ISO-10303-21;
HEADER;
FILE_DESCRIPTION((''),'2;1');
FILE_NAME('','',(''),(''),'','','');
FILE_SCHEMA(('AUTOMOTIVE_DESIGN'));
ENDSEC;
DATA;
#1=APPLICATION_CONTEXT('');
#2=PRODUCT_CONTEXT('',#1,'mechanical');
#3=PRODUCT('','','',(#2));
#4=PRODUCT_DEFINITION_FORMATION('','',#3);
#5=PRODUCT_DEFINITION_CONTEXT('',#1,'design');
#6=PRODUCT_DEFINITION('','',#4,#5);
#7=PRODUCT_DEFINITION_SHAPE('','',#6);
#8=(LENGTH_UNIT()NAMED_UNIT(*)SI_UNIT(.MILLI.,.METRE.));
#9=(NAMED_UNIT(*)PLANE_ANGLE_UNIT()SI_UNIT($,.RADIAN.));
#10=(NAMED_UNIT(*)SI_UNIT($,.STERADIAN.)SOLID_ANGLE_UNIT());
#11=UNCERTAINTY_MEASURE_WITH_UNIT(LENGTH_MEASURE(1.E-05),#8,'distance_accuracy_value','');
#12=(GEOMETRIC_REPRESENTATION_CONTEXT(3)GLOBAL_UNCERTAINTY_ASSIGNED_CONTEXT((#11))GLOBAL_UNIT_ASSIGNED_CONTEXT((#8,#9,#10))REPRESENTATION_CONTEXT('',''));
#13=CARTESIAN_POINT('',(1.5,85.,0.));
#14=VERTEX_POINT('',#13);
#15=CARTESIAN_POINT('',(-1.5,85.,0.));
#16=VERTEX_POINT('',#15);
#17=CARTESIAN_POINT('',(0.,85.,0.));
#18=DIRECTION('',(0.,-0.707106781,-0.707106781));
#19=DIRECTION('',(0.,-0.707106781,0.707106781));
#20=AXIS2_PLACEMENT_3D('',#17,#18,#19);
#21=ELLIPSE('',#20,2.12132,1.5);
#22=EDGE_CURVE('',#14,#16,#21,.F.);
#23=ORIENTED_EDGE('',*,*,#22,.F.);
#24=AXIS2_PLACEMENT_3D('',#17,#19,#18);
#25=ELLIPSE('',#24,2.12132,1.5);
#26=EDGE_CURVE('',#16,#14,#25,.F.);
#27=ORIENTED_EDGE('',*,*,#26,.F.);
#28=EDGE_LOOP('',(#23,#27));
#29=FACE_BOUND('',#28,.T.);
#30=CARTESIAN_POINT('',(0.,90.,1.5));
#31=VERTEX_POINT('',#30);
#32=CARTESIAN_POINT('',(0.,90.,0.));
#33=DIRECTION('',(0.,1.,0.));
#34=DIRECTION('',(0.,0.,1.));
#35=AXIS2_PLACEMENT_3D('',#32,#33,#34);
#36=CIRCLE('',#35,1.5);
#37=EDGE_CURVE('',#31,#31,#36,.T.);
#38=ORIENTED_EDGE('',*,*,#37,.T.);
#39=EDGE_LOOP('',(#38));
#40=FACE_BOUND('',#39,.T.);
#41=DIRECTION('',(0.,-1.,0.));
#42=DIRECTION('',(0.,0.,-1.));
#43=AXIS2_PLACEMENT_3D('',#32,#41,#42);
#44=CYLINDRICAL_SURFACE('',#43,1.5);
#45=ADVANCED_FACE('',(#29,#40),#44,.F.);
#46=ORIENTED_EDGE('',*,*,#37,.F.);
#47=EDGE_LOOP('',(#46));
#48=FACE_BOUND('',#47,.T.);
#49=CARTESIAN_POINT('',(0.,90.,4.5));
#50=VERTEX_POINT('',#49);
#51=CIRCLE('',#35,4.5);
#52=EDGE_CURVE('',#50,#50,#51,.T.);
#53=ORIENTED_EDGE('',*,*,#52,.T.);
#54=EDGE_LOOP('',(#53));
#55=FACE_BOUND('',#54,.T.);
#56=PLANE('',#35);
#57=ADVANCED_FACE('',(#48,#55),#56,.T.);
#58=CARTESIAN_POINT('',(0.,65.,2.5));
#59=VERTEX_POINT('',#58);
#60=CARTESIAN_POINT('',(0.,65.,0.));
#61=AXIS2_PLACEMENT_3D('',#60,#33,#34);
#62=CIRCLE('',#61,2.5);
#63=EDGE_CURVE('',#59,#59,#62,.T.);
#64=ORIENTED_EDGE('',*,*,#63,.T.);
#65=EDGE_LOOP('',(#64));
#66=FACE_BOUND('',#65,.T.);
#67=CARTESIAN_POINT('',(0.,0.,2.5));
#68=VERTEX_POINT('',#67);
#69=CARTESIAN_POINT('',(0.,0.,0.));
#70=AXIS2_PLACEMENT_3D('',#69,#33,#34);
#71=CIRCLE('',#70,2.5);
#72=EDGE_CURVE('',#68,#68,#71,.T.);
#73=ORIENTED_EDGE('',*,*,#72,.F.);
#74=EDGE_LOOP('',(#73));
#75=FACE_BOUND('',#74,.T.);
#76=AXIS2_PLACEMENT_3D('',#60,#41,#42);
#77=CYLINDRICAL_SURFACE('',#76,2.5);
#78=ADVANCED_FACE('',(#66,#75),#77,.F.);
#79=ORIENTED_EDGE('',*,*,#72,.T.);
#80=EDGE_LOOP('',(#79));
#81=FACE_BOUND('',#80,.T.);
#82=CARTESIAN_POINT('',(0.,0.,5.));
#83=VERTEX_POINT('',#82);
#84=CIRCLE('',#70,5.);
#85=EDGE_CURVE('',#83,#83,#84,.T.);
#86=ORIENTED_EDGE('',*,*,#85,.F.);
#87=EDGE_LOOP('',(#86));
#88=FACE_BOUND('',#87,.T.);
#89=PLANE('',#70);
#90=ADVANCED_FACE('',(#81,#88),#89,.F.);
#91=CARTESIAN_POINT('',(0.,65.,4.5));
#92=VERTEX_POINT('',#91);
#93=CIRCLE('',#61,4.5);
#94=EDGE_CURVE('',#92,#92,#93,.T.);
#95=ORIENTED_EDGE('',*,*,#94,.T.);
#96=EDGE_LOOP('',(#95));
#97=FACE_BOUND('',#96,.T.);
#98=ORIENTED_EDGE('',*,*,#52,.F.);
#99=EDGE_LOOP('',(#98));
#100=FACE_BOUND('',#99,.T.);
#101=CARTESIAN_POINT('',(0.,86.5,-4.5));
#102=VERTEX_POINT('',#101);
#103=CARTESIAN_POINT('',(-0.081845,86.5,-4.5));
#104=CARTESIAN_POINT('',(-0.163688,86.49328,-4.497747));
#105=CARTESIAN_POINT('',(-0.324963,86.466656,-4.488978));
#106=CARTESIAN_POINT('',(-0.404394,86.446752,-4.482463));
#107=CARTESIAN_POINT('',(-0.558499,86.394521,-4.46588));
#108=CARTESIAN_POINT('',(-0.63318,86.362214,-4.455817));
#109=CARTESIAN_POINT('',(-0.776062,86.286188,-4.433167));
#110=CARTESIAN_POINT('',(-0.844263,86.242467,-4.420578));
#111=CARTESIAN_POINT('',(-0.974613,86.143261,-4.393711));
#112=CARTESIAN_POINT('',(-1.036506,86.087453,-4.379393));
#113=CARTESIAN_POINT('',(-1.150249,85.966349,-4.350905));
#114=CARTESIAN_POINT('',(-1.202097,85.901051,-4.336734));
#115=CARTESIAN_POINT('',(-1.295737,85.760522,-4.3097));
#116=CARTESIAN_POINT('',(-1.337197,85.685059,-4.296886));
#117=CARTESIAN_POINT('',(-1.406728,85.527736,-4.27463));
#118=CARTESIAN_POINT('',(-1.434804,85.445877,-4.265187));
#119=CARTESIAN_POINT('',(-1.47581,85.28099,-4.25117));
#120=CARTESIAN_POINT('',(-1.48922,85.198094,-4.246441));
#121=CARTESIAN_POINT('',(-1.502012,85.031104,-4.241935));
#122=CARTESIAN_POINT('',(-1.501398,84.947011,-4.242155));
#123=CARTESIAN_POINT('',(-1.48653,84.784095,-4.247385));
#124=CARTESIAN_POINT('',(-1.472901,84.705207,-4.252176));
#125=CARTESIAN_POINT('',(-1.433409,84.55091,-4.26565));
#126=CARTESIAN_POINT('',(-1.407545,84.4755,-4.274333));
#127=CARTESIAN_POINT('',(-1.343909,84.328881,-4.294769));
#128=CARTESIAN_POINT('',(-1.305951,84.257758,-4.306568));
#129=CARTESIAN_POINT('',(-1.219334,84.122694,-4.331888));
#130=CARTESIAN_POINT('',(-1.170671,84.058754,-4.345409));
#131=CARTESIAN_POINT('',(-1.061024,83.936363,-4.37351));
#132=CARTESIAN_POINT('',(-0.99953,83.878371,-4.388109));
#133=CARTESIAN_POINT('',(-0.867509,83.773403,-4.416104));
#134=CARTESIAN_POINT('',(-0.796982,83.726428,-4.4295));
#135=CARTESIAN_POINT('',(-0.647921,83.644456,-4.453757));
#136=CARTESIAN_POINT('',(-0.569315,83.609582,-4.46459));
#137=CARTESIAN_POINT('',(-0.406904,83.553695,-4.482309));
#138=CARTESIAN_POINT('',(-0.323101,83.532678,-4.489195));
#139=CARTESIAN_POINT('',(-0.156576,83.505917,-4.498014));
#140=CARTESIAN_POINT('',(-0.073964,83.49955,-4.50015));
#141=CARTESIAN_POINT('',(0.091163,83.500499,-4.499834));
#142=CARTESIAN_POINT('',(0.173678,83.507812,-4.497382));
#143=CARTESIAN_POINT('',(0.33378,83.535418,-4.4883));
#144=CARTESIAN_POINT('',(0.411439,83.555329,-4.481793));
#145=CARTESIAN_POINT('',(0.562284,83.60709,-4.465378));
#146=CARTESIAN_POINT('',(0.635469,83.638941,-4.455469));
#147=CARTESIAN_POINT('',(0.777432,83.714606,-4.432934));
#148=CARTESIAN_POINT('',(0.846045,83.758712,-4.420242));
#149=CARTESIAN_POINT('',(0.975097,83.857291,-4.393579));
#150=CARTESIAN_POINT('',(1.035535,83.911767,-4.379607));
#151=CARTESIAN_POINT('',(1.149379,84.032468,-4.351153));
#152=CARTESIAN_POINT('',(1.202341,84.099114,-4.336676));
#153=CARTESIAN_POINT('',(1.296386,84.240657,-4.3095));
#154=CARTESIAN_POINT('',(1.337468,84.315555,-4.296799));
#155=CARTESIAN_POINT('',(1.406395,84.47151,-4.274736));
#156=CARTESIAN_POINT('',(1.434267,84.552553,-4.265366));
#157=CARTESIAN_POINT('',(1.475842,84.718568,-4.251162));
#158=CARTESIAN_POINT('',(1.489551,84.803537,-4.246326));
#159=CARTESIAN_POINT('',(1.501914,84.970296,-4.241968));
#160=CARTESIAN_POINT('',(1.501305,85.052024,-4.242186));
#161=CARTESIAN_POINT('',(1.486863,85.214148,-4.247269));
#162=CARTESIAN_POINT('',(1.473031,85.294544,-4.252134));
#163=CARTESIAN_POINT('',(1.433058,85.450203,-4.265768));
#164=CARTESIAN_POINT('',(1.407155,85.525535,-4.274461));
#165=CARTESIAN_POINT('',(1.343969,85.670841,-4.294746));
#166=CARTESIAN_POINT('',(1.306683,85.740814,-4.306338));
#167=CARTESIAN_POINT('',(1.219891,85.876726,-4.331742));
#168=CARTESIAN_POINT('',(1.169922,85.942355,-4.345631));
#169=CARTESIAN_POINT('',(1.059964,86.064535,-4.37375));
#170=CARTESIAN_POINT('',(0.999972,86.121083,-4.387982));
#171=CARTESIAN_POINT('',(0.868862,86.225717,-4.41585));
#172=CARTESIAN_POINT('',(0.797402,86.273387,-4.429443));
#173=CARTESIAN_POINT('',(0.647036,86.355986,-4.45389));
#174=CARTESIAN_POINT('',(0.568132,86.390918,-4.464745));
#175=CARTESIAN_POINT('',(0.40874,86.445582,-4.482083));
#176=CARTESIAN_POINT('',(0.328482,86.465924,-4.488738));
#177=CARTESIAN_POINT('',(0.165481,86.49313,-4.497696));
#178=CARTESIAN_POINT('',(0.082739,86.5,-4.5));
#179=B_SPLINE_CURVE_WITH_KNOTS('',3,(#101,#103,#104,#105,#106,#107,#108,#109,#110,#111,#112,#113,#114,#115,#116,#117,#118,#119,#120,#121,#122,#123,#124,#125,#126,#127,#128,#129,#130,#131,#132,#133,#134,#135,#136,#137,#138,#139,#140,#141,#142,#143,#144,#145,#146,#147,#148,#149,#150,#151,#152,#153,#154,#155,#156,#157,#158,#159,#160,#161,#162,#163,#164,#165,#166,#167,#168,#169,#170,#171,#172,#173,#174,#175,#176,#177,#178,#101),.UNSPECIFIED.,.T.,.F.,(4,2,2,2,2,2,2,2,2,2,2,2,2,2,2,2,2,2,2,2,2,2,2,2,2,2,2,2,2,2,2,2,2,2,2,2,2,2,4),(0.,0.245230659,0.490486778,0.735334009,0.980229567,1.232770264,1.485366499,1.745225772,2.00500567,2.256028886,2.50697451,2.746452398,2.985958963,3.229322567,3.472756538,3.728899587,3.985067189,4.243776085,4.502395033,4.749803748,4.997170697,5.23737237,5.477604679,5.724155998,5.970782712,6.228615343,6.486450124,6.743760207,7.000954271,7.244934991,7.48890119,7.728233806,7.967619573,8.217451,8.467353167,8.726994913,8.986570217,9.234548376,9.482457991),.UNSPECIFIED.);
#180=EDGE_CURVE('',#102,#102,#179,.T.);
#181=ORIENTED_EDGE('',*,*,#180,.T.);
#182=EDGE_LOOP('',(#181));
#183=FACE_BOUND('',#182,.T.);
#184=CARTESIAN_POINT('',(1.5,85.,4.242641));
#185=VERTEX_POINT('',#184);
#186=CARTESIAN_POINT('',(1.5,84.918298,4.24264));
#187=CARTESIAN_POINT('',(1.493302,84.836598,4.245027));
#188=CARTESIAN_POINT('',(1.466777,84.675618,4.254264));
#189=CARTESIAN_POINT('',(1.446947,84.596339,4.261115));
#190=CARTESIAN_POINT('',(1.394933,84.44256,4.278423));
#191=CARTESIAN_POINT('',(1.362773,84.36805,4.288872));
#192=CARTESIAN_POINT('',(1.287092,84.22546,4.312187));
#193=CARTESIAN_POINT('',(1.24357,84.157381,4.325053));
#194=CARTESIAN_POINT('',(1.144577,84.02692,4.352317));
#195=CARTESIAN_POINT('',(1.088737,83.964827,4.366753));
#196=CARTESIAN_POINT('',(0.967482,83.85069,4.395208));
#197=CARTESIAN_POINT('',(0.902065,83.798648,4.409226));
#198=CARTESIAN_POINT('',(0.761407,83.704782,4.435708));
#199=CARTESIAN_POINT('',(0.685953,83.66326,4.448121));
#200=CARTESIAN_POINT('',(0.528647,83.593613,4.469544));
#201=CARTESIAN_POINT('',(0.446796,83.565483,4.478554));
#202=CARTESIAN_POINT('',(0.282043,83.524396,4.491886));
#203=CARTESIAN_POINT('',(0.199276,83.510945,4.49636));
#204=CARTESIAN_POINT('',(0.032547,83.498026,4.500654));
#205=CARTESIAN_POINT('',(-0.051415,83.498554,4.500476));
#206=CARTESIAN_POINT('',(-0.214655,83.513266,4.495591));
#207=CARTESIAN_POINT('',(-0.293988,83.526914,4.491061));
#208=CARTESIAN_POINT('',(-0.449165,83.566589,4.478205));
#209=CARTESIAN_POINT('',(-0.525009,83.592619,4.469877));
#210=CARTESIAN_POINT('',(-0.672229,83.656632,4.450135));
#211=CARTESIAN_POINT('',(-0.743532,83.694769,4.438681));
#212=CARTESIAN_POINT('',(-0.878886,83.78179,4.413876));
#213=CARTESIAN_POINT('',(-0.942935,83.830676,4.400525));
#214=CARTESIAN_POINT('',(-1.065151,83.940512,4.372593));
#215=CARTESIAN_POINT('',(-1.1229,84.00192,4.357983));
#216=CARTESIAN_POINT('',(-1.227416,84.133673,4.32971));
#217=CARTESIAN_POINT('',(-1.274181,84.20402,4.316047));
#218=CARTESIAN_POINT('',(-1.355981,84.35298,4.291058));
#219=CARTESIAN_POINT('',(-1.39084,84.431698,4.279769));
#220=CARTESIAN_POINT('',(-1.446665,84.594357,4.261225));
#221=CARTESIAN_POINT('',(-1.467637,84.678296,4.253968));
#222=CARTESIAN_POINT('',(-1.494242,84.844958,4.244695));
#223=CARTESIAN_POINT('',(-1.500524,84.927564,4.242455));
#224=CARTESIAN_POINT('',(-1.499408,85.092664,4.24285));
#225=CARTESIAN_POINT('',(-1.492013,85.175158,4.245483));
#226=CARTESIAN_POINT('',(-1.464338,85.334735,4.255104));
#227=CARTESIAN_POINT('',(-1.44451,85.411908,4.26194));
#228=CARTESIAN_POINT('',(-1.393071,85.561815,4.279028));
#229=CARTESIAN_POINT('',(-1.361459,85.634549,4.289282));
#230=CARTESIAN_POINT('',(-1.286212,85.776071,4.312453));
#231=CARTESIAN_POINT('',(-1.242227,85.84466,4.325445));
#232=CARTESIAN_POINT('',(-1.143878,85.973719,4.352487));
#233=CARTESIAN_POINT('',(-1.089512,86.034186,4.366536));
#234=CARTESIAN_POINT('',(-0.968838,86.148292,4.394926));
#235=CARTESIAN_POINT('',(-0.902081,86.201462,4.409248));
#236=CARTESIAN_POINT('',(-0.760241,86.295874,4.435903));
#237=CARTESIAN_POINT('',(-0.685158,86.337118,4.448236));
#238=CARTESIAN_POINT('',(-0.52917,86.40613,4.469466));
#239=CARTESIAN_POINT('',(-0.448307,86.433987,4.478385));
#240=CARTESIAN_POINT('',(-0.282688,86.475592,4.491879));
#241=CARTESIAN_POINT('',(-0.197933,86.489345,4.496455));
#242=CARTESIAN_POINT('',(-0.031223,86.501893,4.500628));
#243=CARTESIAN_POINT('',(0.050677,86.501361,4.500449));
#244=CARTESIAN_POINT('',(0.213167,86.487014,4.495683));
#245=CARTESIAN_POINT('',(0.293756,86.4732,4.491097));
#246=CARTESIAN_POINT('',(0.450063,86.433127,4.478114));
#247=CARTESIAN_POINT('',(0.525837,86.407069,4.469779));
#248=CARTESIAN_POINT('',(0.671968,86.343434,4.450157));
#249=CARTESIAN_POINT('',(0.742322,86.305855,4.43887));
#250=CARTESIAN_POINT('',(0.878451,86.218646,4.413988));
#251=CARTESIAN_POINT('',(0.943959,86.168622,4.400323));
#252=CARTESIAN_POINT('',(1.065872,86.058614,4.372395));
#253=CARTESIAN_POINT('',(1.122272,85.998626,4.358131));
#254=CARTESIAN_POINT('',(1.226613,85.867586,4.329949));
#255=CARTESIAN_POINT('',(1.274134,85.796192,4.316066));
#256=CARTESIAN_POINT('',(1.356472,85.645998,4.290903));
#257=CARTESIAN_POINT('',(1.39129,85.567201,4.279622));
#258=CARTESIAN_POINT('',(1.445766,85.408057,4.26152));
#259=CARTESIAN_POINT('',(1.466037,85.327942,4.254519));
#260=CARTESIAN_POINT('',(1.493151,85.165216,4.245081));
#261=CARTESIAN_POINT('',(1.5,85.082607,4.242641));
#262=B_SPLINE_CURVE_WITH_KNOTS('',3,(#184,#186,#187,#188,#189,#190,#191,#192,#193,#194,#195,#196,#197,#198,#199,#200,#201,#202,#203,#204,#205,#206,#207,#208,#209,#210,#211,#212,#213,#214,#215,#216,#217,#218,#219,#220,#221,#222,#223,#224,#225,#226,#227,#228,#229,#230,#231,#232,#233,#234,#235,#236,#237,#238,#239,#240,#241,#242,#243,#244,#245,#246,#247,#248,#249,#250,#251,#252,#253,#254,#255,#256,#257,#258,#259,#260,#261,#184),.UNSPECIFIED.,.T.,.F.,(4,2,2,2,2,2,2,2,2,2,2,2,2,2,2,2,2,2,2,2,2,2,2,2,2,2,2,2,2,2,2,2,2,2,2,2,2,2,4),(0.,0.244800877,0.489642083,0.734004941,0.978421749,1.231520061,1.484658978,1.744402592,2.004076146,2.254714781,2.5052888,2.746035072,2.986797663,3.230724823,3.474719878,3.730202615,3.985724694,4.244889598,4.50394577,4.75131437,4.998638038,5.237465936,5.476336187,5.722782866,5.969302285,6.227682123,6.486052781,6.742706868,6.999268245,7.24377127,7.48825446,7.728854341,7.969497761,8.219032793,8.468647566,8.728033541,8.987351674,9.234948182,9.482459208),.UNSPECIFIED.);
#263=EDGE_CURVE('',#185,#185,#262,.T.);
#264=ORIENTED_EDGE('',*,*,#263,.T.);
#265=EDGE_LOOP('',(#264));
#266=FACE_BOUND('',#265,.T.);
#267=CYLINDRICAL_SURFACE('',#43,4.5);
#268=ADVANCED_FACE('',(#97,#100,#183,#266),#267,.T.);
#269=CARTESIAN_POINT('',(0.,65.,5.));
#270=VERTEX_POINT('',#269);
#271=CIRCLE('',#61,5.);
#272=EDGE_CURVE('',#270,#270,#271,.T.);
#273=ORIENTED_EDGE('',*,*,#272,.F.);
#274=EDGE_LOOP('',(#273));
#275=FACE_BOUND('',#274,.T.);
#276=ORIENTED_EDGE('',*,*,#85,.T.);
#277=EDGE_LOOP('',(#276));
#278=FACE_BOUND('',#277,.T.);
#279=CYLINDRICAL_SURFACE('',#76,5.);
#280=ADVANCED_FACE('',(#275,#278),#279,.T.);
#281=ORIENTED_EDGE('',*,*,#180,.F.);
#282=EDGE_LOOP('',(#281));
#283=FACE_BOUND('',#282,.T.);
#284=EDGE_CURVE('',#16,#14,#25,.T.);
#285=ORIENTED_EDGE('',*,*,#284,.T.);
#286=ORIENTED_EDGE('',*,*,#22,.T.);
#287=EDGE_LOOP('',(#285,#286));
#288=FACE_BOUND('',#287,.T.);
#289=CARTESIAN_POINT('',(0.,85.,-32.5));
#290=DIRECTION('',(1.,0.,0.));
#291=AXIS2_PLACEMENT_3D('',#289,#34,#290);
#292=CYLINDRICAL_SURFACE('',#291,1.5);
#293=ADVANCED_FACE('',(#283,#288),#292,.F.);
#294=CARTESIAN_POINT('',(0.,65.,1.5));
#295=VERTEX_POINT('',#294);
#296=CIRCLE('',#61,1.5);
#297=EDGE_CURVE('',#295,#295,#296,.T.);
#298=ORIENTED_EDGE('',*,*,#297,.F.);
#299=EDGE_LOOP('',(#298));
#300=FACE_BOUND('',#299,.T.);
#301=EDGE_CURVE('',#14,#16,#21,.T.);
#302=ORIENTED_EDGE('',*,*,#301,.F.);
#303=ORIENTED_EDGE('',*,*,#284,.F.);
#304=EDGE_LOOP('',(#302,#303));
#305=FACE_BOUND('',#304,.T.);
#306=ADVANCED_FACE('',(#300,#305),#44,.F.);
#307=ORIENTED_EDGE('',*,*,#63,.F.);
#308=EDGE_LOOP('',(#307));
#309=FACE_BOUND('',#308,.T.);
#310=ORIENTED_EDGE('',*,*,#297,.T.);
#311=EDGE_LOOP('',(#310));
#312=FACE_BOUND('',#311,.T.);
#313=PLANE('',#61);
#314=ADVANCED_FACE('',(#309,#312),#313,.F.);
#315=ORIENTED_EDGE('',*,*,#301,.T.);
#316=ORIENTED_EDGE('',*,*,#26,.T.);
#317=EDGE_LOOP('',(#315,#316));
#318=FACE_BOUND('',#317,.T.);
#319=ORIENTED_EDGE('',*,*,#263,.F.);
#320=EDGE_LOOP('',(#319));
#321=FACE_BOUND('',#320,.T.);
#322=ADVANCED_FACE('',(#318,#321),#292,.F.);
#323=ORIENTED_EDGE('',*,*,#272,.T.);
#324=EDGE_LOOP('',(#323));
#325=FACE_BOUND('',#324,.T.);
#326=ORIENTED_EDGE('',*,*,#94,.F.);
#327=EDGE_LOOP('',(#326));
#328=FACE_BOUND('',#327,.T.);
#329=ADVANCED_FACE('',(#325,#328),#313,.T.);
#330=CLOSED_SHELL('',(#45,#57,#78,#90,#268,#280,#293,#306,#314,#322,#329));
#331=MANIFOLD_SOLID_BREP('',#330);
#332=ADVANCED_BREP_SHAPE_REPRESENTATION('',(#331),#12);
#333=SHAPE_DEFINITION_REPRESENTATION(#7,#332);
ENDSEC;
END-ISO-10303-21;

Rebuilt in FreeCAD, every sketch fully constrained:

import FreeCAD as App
import Part
import Sketcher
from FreeCAD import Vector
Q = App.Units.Quantity

doc = App.newDocument("Part")
body = doc.addObject("PartDesign::Body", "Body")

# Sketch on XZ plane
sketch1 = body.newObject("Sketcher::SketchObject", "Sketch")
sketch1.AttachmentSupport = (doc.getObject("XZ_Plane"), [""])
sketch1.MapMode = "FlatFace"
sketch1.addGeometry([
    Part.Circle(Vector(0, 0, 0), Vector(0, 0, 1), 5),
    Part.Circle(Vector(0, 0, 0), Vector(0, 0, 1), 2.5),
], False)
sketch1.addConstraint([
    Sketcher.Constraint("Coincident", 0, 3, -1, 1),
    Sketcher.Constraint("Coincident", 1, 3, -1, 1),
    Sketcher.Constraint("Diameter", 0, Q("10 mm")),
    Sketcher.Constraint("Diameter", 1, Q("5 mm")),
])
pad1 = body.newObject("PartDesign::Pad", "Pad")
pad1.Profile = sketch1
pad1.Length = 65
pad1.Reversed = True

# Sketch on XZ plane
sketch2 = body.newObject("Sketcher::SketchObject", "Sketch001")
sketch2.AttachmentSupport = (doc.getObject("XZ_Plane"), [""])
sketch2.MapMode = "FlatFace"
sketch2.AttachmentOffset = App.Placement(Vector(0, 0, -65), App.Rotation())
sketch2.addGeometry([
    Part.Circle(Vector(0, 0, 0), Vector(0, 0, 1), 4.5),
    Part.Circle(Vector(0, 0, 0), Vector(0, 0, 1), 1.5),
], False)
sketch2.addConstraint([
    Sketcher.Constraint("Coincident", 0, 3, -1, 1),
    Sketcher.Constraint("Coincident", 1, 3, -1, 1),
    Sketcher.Constraint("Diameter", 0, Q("9 mm")),
    Sketcher.Constraint("Diameter", 1, Q("3 mm")),
])
pad2 = body.newObject("PartDesign::Pad", "Pad001")
pad2.Profile = sketch2
pad2.Length = 25
pad2.Reversed = True

# Sketch on XY plane
sketch3 = body.newObject("Sketcher::SketchObject", "Sketch002")
sketch3.AttachmentSupport = (doc.getObject("XY_Plane"), [""])
sketch3.MapMode = "FlatFace"
sketch3.addGeometry(Part.Circle(Vector(0, 85, 0), Vector(0, 0, 1), 1.5), False)
sketch3.addConstraint([
    Sketcher.Constraint("PointOnObject", 0, 3, -2),
    Sketcher.Constraint("Diameter", 0, Q("3 mm")),
    Sketcher.Constraint("DistanceY", -1, 1, 0, 3, Q("85 mm")),
])
pocket1 = body.newObject("PartDesign::Pocket", "Pocket")
pocket1.Profile = sketch3
pocket1.Length = 65
pocket1.Midplane = True

doc.recompute()
